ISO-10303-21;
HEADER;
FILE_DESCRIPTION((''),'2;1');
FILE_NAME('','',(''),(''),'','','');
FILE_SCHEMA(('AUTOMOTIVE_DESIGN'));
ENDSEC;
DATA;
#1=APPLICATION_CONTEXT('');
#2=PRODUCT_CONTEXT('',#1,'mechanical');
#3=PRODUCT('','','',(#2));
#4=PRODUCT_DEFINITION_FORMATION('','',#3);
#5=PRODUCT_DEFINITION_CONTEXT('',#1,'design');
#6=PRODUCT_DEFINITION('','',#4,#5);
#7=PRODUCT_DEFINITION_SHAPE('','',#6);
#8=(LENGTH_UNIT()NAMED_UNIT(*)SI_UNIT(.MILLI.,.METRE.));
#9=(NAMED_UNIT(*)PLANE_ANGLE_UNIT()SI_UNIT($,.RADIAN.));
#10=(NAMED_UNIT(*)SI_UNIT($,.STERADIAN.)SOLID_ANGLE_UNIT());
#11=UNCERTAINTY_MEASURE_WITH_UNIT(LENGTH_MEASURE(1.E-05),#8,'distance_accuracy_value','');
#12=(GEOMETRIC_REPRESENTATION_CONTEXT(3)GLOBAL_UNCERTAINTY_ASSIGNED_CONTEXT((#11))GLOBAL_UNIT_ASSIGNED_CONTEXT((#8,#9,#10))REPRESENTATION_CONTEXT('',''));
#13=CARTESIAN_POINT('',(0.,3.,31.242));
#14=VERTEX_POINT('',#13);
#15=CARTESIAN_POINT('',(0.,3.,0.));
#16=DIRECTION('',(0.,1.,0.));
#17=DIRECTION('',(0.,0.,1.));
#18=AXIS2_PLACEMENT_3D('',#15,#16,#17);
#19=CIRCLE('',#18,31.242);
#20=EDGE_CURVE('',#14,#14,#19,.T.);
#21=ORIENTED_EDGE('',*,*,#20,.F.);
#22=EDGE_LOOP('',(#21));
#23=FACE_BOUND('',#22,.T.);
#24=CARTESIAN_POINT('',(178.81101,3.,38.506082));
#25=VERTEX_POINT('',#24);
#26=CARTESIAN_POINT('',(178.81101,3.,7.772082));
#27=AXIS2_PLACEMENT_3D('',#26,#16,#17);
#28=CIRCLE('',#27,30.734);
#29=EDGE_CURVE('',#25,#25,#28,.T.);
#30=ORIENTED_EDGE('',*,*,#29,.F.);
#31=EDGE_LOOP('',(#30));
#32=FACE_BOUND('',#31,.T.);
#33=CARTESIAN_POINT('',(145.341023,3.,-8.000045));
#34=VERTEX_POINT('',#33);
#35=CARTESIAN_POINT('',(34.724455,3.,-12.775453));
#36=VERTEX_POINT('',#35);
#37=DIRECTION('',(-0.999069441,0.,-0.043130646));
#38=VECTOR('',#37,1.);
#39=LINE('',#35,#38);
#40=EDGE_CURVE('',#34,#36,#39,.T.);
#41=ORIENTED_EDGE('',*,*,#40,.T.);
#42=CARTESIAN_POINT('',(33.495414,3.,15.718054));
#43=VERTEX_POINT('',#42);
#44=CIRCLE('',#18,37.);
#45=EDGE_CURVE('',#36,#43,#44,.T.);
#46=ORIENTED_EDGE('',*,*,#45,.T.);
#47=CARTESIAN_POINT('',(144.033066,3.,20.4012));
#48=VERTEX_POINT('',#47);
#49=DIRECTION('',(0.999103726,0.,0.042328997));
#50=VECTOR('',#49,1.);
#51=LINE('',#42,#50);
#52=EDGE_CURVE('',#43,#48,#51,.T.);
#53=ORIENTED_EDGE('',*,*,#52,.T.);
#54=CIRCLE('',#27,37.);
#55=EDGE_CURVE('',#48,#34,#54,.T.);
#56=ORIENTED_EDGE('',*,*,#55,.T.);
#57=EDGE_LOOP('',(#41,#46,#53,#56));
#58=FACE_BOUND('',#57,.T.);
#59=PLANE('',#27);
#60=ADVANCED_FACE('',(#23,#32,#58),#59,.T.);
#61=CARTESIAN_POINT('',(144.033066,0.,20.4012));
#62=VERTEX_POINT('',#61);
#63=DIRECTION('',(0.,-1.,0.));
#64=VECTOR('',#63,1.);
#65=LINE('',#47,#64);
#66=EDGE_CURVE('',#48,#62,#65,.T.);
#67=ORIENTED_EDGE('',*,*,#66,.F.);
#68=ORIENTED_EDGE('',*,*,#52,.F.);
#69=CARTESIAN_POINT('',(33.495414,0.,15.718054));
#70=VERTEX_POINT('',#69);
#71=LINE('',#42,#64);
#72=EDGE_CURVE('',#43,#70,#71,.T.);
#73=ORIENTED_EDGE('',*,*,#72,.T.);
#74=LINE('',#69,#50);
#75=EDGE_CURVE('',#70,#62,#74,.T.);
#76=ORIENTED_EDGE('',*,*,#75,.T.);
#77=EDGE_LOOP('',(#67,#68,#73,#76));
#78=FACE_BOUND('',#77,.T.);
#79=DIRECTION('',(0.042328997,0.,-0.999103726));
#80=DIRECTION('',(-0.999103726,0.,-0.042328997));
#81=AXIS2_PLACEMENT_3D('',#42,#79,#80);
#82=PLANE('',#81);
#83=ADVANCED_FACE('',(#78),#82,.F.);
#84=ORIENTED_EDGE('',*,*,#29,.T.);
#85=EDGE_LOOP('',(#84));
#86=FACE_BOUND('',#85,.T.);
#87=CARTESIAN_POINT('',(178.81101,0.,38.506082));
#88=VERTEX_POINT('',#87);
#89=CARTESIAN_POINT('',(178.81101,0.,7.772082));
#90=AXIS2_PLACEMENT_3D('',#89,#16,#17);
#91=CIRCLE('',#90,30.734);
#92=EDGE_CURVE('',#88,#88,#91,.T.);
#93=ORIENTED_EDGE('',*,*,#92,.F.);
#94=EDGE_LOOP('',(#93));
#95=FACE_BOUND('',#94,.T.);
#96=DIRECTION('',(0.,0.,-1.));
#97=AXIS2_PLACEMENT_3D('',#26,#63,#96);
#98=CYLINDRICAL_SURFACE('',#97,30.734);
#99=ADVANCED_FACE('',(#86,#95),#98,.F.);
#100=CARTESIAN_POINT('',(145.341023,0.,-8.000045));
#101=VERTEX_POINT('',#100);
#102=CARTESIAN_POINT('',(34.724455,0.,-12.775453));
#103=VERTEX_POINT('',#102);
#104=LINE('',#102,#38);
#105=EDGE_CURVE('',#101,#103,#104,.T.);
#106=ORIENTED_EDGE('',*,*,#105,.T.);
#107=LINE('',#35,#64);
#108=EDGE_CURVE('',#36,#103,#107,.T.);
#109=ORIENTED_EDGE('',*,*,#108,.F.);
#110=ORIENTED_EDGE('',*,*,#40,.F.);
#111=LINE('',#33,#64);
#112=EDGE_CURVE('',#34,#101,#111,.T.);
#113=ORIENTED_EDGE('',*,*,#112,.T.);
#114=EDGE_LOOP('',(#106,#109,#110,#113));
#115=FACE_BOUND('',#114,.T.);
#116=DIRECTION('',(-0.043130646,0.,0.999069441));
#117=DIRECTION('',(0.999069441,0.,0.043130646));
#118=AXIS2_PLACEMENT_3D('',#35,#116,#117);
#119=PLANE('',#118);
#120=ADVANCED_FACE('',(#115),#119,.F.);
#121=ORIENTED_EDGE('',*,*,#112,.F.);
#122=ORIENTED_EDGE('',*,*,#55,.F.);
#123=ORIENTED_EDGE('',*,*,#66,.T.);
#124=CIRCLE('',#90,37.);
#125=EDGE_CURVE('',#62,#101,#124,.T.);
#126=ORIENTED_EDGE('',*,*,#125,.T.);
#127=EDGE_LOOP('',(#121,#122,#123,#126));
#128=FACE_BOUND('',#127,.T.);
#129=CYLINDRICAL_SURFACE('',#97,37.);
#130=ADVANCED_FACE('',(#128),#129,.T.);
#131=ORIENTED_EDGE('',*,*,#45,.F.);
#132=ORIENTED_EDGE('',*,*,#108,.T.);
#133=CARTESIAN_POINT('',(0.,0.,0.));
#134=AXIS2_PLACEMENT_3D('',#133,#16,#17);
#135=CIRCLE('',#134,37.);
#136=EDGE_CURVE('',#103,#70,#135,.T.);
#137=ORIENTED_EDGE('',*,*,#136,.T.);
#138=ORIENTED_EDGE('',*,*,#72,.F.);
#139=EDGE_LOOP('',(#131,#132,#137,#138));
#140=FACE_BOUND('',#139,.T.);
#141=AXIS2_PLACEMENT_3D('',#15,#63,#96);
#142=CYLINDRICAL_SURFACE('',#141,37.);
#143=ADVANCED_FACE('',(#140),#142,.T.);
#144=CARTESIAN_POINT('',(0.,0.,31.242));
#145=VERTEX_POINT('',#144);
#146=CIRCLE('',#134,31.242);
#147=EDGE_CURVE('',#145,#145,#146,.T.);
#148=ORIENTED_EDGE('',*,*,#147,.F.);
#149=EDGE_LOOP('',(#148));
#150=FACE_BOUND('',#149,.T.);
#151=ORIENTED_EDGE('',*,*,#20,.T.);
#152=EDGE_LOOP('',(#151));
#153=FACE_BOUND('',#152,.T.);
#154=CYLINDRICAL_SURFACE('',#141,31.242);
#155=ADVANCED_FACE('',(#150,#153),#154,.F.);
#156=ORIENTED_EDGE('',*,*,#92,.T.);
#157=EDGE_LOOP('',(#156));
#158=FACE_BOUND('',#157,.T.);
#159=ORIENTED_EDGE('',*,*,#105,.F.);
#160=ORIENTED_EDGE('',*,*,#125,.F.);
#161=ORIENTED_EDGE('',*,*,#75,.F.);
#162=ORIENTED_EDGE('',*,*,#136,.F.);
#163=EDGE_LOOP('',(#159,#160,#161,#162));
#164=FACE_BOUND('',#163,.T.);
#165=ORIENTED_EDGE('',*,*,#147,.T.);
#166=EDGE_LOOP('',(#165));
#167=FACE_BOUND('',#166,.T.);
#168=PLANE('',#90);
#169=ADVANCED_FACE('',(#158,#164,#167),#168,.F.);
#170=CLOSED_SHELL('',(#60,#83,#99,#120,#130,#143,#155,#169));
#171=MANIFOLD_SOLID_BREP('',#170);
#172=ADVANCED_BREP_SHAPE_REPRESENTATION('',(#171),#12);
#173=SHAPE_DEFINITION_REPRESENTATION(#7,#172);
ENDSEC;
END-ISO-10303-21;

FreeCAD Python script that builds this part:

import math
import FreeCAD as App
import Part
import Sketcher

doc = App.newDocument("Part")
body = doc.addObject("PartDesign::Body", "Body")

# Sketch on XZ plane
sketch1 = doc.addObject("Sketcher::SketchObject", "Sketch")
body.addObject(sketch1)
sketch1.AttachmentSupport = (doc.XZ_Plane, [""])
sketch1.MapMode = "FlatFace"
sketch1.addGeometry(Part.LineSegment(App.Vector(145, -8, 0), App.Vector(35, -13, 0)), False)
sketch1.addGeometry(Part.ArcOfCircle(Part.Circle(App.Vector(0, 0, 0), App.Vector(0, 0, 1), 37), math.radians(25), math.radians(340)), False)
sketch1.addGeometry(Part.LineSegment(App.Vector(33, 16, 0), App.Vector(144, 20, 0)), False)
sketch1.addGeometry(Part.ArcOfCircle(Part.Circle(App.Vector(179, 8, 0), App.Vector(0, 0, 1), 37), math.radians(-155), math.radians(160)), False)
sketch1.addGeometry(Part.Circle(App.Vector(179, 8, 0), App.Vector(0, 0, 1), 31), False)
sketch1.addGeometry(Part.Circle(App.Vector(0, 0, 0), App.Vector(0, 0, 1), 31), False)
sketch1.addConstraint(Sketcher.Constraint("Coincident", 0, 2, 1, 2))
sketch1.addConstraint(Sketcher.Constraint("Coincident", 1, 1, 2, 1))
sketch1.addConstraint(Sketcher.Constraint("Coincident", 2, 2, 3, 2))
sketch1.addConstraint(Sketcher.Constraint("Coincident", 3, 1, 0, 1))
sketch1.addConstraint(Sketcher.Constraint("Coincident", 1, 3, -1, 1))
sketch1.addConstraint(Sketcher.Constraint("Coincident", 5, 3, -1, 1))
sketch1.addConstraint(Sketcher.Constraint("Coincident", 4, 3, 3, 3))
sketch1.addConstraint(Sketcher.Constraint("Equal", 1, 3))
sketch1.addConstraint(Sketcher.Constraint("Radius", 1, 37.0))
sketch1.addConstraint(Sketcher.Constraint("Diameter", 4, 61.468))
sketch1.addConstraint(Sketcher.Constraint("Diameter", 5, 62.484))
sketch1.addConstraint(Sketcher.Constraint("Distance", 0, 110.719599))
sketch1.addConstraint(Sketcher.Constraint("DistanceY", -1, 1, 2, 2, 20.4012))
sketch1.addConstraint(Sketcher.Constraint("DistanceY", 3, 1, 1, 1, 23.7181))
sketch1.addConstraint(Sketcher.Constraint("DistanceX", -1, 1, 3, 3, 178.81101))
sketch1.addConstraint(Sketcher.Constraint("DistanceY", -1, 1, 3, 3, 7.772082))
sketch1.addConstraint(Sketcher.Constraint("DistanceX", 1, 1, 0, 2, 1.229041))
pad1 = doc.addObject("PartDesign::Pad", "Pad")
body.addObject(pad1)
pad1.Profile = sketch1
pad1.Length = 3
pad1.Reversed = True

doc.recompute()
